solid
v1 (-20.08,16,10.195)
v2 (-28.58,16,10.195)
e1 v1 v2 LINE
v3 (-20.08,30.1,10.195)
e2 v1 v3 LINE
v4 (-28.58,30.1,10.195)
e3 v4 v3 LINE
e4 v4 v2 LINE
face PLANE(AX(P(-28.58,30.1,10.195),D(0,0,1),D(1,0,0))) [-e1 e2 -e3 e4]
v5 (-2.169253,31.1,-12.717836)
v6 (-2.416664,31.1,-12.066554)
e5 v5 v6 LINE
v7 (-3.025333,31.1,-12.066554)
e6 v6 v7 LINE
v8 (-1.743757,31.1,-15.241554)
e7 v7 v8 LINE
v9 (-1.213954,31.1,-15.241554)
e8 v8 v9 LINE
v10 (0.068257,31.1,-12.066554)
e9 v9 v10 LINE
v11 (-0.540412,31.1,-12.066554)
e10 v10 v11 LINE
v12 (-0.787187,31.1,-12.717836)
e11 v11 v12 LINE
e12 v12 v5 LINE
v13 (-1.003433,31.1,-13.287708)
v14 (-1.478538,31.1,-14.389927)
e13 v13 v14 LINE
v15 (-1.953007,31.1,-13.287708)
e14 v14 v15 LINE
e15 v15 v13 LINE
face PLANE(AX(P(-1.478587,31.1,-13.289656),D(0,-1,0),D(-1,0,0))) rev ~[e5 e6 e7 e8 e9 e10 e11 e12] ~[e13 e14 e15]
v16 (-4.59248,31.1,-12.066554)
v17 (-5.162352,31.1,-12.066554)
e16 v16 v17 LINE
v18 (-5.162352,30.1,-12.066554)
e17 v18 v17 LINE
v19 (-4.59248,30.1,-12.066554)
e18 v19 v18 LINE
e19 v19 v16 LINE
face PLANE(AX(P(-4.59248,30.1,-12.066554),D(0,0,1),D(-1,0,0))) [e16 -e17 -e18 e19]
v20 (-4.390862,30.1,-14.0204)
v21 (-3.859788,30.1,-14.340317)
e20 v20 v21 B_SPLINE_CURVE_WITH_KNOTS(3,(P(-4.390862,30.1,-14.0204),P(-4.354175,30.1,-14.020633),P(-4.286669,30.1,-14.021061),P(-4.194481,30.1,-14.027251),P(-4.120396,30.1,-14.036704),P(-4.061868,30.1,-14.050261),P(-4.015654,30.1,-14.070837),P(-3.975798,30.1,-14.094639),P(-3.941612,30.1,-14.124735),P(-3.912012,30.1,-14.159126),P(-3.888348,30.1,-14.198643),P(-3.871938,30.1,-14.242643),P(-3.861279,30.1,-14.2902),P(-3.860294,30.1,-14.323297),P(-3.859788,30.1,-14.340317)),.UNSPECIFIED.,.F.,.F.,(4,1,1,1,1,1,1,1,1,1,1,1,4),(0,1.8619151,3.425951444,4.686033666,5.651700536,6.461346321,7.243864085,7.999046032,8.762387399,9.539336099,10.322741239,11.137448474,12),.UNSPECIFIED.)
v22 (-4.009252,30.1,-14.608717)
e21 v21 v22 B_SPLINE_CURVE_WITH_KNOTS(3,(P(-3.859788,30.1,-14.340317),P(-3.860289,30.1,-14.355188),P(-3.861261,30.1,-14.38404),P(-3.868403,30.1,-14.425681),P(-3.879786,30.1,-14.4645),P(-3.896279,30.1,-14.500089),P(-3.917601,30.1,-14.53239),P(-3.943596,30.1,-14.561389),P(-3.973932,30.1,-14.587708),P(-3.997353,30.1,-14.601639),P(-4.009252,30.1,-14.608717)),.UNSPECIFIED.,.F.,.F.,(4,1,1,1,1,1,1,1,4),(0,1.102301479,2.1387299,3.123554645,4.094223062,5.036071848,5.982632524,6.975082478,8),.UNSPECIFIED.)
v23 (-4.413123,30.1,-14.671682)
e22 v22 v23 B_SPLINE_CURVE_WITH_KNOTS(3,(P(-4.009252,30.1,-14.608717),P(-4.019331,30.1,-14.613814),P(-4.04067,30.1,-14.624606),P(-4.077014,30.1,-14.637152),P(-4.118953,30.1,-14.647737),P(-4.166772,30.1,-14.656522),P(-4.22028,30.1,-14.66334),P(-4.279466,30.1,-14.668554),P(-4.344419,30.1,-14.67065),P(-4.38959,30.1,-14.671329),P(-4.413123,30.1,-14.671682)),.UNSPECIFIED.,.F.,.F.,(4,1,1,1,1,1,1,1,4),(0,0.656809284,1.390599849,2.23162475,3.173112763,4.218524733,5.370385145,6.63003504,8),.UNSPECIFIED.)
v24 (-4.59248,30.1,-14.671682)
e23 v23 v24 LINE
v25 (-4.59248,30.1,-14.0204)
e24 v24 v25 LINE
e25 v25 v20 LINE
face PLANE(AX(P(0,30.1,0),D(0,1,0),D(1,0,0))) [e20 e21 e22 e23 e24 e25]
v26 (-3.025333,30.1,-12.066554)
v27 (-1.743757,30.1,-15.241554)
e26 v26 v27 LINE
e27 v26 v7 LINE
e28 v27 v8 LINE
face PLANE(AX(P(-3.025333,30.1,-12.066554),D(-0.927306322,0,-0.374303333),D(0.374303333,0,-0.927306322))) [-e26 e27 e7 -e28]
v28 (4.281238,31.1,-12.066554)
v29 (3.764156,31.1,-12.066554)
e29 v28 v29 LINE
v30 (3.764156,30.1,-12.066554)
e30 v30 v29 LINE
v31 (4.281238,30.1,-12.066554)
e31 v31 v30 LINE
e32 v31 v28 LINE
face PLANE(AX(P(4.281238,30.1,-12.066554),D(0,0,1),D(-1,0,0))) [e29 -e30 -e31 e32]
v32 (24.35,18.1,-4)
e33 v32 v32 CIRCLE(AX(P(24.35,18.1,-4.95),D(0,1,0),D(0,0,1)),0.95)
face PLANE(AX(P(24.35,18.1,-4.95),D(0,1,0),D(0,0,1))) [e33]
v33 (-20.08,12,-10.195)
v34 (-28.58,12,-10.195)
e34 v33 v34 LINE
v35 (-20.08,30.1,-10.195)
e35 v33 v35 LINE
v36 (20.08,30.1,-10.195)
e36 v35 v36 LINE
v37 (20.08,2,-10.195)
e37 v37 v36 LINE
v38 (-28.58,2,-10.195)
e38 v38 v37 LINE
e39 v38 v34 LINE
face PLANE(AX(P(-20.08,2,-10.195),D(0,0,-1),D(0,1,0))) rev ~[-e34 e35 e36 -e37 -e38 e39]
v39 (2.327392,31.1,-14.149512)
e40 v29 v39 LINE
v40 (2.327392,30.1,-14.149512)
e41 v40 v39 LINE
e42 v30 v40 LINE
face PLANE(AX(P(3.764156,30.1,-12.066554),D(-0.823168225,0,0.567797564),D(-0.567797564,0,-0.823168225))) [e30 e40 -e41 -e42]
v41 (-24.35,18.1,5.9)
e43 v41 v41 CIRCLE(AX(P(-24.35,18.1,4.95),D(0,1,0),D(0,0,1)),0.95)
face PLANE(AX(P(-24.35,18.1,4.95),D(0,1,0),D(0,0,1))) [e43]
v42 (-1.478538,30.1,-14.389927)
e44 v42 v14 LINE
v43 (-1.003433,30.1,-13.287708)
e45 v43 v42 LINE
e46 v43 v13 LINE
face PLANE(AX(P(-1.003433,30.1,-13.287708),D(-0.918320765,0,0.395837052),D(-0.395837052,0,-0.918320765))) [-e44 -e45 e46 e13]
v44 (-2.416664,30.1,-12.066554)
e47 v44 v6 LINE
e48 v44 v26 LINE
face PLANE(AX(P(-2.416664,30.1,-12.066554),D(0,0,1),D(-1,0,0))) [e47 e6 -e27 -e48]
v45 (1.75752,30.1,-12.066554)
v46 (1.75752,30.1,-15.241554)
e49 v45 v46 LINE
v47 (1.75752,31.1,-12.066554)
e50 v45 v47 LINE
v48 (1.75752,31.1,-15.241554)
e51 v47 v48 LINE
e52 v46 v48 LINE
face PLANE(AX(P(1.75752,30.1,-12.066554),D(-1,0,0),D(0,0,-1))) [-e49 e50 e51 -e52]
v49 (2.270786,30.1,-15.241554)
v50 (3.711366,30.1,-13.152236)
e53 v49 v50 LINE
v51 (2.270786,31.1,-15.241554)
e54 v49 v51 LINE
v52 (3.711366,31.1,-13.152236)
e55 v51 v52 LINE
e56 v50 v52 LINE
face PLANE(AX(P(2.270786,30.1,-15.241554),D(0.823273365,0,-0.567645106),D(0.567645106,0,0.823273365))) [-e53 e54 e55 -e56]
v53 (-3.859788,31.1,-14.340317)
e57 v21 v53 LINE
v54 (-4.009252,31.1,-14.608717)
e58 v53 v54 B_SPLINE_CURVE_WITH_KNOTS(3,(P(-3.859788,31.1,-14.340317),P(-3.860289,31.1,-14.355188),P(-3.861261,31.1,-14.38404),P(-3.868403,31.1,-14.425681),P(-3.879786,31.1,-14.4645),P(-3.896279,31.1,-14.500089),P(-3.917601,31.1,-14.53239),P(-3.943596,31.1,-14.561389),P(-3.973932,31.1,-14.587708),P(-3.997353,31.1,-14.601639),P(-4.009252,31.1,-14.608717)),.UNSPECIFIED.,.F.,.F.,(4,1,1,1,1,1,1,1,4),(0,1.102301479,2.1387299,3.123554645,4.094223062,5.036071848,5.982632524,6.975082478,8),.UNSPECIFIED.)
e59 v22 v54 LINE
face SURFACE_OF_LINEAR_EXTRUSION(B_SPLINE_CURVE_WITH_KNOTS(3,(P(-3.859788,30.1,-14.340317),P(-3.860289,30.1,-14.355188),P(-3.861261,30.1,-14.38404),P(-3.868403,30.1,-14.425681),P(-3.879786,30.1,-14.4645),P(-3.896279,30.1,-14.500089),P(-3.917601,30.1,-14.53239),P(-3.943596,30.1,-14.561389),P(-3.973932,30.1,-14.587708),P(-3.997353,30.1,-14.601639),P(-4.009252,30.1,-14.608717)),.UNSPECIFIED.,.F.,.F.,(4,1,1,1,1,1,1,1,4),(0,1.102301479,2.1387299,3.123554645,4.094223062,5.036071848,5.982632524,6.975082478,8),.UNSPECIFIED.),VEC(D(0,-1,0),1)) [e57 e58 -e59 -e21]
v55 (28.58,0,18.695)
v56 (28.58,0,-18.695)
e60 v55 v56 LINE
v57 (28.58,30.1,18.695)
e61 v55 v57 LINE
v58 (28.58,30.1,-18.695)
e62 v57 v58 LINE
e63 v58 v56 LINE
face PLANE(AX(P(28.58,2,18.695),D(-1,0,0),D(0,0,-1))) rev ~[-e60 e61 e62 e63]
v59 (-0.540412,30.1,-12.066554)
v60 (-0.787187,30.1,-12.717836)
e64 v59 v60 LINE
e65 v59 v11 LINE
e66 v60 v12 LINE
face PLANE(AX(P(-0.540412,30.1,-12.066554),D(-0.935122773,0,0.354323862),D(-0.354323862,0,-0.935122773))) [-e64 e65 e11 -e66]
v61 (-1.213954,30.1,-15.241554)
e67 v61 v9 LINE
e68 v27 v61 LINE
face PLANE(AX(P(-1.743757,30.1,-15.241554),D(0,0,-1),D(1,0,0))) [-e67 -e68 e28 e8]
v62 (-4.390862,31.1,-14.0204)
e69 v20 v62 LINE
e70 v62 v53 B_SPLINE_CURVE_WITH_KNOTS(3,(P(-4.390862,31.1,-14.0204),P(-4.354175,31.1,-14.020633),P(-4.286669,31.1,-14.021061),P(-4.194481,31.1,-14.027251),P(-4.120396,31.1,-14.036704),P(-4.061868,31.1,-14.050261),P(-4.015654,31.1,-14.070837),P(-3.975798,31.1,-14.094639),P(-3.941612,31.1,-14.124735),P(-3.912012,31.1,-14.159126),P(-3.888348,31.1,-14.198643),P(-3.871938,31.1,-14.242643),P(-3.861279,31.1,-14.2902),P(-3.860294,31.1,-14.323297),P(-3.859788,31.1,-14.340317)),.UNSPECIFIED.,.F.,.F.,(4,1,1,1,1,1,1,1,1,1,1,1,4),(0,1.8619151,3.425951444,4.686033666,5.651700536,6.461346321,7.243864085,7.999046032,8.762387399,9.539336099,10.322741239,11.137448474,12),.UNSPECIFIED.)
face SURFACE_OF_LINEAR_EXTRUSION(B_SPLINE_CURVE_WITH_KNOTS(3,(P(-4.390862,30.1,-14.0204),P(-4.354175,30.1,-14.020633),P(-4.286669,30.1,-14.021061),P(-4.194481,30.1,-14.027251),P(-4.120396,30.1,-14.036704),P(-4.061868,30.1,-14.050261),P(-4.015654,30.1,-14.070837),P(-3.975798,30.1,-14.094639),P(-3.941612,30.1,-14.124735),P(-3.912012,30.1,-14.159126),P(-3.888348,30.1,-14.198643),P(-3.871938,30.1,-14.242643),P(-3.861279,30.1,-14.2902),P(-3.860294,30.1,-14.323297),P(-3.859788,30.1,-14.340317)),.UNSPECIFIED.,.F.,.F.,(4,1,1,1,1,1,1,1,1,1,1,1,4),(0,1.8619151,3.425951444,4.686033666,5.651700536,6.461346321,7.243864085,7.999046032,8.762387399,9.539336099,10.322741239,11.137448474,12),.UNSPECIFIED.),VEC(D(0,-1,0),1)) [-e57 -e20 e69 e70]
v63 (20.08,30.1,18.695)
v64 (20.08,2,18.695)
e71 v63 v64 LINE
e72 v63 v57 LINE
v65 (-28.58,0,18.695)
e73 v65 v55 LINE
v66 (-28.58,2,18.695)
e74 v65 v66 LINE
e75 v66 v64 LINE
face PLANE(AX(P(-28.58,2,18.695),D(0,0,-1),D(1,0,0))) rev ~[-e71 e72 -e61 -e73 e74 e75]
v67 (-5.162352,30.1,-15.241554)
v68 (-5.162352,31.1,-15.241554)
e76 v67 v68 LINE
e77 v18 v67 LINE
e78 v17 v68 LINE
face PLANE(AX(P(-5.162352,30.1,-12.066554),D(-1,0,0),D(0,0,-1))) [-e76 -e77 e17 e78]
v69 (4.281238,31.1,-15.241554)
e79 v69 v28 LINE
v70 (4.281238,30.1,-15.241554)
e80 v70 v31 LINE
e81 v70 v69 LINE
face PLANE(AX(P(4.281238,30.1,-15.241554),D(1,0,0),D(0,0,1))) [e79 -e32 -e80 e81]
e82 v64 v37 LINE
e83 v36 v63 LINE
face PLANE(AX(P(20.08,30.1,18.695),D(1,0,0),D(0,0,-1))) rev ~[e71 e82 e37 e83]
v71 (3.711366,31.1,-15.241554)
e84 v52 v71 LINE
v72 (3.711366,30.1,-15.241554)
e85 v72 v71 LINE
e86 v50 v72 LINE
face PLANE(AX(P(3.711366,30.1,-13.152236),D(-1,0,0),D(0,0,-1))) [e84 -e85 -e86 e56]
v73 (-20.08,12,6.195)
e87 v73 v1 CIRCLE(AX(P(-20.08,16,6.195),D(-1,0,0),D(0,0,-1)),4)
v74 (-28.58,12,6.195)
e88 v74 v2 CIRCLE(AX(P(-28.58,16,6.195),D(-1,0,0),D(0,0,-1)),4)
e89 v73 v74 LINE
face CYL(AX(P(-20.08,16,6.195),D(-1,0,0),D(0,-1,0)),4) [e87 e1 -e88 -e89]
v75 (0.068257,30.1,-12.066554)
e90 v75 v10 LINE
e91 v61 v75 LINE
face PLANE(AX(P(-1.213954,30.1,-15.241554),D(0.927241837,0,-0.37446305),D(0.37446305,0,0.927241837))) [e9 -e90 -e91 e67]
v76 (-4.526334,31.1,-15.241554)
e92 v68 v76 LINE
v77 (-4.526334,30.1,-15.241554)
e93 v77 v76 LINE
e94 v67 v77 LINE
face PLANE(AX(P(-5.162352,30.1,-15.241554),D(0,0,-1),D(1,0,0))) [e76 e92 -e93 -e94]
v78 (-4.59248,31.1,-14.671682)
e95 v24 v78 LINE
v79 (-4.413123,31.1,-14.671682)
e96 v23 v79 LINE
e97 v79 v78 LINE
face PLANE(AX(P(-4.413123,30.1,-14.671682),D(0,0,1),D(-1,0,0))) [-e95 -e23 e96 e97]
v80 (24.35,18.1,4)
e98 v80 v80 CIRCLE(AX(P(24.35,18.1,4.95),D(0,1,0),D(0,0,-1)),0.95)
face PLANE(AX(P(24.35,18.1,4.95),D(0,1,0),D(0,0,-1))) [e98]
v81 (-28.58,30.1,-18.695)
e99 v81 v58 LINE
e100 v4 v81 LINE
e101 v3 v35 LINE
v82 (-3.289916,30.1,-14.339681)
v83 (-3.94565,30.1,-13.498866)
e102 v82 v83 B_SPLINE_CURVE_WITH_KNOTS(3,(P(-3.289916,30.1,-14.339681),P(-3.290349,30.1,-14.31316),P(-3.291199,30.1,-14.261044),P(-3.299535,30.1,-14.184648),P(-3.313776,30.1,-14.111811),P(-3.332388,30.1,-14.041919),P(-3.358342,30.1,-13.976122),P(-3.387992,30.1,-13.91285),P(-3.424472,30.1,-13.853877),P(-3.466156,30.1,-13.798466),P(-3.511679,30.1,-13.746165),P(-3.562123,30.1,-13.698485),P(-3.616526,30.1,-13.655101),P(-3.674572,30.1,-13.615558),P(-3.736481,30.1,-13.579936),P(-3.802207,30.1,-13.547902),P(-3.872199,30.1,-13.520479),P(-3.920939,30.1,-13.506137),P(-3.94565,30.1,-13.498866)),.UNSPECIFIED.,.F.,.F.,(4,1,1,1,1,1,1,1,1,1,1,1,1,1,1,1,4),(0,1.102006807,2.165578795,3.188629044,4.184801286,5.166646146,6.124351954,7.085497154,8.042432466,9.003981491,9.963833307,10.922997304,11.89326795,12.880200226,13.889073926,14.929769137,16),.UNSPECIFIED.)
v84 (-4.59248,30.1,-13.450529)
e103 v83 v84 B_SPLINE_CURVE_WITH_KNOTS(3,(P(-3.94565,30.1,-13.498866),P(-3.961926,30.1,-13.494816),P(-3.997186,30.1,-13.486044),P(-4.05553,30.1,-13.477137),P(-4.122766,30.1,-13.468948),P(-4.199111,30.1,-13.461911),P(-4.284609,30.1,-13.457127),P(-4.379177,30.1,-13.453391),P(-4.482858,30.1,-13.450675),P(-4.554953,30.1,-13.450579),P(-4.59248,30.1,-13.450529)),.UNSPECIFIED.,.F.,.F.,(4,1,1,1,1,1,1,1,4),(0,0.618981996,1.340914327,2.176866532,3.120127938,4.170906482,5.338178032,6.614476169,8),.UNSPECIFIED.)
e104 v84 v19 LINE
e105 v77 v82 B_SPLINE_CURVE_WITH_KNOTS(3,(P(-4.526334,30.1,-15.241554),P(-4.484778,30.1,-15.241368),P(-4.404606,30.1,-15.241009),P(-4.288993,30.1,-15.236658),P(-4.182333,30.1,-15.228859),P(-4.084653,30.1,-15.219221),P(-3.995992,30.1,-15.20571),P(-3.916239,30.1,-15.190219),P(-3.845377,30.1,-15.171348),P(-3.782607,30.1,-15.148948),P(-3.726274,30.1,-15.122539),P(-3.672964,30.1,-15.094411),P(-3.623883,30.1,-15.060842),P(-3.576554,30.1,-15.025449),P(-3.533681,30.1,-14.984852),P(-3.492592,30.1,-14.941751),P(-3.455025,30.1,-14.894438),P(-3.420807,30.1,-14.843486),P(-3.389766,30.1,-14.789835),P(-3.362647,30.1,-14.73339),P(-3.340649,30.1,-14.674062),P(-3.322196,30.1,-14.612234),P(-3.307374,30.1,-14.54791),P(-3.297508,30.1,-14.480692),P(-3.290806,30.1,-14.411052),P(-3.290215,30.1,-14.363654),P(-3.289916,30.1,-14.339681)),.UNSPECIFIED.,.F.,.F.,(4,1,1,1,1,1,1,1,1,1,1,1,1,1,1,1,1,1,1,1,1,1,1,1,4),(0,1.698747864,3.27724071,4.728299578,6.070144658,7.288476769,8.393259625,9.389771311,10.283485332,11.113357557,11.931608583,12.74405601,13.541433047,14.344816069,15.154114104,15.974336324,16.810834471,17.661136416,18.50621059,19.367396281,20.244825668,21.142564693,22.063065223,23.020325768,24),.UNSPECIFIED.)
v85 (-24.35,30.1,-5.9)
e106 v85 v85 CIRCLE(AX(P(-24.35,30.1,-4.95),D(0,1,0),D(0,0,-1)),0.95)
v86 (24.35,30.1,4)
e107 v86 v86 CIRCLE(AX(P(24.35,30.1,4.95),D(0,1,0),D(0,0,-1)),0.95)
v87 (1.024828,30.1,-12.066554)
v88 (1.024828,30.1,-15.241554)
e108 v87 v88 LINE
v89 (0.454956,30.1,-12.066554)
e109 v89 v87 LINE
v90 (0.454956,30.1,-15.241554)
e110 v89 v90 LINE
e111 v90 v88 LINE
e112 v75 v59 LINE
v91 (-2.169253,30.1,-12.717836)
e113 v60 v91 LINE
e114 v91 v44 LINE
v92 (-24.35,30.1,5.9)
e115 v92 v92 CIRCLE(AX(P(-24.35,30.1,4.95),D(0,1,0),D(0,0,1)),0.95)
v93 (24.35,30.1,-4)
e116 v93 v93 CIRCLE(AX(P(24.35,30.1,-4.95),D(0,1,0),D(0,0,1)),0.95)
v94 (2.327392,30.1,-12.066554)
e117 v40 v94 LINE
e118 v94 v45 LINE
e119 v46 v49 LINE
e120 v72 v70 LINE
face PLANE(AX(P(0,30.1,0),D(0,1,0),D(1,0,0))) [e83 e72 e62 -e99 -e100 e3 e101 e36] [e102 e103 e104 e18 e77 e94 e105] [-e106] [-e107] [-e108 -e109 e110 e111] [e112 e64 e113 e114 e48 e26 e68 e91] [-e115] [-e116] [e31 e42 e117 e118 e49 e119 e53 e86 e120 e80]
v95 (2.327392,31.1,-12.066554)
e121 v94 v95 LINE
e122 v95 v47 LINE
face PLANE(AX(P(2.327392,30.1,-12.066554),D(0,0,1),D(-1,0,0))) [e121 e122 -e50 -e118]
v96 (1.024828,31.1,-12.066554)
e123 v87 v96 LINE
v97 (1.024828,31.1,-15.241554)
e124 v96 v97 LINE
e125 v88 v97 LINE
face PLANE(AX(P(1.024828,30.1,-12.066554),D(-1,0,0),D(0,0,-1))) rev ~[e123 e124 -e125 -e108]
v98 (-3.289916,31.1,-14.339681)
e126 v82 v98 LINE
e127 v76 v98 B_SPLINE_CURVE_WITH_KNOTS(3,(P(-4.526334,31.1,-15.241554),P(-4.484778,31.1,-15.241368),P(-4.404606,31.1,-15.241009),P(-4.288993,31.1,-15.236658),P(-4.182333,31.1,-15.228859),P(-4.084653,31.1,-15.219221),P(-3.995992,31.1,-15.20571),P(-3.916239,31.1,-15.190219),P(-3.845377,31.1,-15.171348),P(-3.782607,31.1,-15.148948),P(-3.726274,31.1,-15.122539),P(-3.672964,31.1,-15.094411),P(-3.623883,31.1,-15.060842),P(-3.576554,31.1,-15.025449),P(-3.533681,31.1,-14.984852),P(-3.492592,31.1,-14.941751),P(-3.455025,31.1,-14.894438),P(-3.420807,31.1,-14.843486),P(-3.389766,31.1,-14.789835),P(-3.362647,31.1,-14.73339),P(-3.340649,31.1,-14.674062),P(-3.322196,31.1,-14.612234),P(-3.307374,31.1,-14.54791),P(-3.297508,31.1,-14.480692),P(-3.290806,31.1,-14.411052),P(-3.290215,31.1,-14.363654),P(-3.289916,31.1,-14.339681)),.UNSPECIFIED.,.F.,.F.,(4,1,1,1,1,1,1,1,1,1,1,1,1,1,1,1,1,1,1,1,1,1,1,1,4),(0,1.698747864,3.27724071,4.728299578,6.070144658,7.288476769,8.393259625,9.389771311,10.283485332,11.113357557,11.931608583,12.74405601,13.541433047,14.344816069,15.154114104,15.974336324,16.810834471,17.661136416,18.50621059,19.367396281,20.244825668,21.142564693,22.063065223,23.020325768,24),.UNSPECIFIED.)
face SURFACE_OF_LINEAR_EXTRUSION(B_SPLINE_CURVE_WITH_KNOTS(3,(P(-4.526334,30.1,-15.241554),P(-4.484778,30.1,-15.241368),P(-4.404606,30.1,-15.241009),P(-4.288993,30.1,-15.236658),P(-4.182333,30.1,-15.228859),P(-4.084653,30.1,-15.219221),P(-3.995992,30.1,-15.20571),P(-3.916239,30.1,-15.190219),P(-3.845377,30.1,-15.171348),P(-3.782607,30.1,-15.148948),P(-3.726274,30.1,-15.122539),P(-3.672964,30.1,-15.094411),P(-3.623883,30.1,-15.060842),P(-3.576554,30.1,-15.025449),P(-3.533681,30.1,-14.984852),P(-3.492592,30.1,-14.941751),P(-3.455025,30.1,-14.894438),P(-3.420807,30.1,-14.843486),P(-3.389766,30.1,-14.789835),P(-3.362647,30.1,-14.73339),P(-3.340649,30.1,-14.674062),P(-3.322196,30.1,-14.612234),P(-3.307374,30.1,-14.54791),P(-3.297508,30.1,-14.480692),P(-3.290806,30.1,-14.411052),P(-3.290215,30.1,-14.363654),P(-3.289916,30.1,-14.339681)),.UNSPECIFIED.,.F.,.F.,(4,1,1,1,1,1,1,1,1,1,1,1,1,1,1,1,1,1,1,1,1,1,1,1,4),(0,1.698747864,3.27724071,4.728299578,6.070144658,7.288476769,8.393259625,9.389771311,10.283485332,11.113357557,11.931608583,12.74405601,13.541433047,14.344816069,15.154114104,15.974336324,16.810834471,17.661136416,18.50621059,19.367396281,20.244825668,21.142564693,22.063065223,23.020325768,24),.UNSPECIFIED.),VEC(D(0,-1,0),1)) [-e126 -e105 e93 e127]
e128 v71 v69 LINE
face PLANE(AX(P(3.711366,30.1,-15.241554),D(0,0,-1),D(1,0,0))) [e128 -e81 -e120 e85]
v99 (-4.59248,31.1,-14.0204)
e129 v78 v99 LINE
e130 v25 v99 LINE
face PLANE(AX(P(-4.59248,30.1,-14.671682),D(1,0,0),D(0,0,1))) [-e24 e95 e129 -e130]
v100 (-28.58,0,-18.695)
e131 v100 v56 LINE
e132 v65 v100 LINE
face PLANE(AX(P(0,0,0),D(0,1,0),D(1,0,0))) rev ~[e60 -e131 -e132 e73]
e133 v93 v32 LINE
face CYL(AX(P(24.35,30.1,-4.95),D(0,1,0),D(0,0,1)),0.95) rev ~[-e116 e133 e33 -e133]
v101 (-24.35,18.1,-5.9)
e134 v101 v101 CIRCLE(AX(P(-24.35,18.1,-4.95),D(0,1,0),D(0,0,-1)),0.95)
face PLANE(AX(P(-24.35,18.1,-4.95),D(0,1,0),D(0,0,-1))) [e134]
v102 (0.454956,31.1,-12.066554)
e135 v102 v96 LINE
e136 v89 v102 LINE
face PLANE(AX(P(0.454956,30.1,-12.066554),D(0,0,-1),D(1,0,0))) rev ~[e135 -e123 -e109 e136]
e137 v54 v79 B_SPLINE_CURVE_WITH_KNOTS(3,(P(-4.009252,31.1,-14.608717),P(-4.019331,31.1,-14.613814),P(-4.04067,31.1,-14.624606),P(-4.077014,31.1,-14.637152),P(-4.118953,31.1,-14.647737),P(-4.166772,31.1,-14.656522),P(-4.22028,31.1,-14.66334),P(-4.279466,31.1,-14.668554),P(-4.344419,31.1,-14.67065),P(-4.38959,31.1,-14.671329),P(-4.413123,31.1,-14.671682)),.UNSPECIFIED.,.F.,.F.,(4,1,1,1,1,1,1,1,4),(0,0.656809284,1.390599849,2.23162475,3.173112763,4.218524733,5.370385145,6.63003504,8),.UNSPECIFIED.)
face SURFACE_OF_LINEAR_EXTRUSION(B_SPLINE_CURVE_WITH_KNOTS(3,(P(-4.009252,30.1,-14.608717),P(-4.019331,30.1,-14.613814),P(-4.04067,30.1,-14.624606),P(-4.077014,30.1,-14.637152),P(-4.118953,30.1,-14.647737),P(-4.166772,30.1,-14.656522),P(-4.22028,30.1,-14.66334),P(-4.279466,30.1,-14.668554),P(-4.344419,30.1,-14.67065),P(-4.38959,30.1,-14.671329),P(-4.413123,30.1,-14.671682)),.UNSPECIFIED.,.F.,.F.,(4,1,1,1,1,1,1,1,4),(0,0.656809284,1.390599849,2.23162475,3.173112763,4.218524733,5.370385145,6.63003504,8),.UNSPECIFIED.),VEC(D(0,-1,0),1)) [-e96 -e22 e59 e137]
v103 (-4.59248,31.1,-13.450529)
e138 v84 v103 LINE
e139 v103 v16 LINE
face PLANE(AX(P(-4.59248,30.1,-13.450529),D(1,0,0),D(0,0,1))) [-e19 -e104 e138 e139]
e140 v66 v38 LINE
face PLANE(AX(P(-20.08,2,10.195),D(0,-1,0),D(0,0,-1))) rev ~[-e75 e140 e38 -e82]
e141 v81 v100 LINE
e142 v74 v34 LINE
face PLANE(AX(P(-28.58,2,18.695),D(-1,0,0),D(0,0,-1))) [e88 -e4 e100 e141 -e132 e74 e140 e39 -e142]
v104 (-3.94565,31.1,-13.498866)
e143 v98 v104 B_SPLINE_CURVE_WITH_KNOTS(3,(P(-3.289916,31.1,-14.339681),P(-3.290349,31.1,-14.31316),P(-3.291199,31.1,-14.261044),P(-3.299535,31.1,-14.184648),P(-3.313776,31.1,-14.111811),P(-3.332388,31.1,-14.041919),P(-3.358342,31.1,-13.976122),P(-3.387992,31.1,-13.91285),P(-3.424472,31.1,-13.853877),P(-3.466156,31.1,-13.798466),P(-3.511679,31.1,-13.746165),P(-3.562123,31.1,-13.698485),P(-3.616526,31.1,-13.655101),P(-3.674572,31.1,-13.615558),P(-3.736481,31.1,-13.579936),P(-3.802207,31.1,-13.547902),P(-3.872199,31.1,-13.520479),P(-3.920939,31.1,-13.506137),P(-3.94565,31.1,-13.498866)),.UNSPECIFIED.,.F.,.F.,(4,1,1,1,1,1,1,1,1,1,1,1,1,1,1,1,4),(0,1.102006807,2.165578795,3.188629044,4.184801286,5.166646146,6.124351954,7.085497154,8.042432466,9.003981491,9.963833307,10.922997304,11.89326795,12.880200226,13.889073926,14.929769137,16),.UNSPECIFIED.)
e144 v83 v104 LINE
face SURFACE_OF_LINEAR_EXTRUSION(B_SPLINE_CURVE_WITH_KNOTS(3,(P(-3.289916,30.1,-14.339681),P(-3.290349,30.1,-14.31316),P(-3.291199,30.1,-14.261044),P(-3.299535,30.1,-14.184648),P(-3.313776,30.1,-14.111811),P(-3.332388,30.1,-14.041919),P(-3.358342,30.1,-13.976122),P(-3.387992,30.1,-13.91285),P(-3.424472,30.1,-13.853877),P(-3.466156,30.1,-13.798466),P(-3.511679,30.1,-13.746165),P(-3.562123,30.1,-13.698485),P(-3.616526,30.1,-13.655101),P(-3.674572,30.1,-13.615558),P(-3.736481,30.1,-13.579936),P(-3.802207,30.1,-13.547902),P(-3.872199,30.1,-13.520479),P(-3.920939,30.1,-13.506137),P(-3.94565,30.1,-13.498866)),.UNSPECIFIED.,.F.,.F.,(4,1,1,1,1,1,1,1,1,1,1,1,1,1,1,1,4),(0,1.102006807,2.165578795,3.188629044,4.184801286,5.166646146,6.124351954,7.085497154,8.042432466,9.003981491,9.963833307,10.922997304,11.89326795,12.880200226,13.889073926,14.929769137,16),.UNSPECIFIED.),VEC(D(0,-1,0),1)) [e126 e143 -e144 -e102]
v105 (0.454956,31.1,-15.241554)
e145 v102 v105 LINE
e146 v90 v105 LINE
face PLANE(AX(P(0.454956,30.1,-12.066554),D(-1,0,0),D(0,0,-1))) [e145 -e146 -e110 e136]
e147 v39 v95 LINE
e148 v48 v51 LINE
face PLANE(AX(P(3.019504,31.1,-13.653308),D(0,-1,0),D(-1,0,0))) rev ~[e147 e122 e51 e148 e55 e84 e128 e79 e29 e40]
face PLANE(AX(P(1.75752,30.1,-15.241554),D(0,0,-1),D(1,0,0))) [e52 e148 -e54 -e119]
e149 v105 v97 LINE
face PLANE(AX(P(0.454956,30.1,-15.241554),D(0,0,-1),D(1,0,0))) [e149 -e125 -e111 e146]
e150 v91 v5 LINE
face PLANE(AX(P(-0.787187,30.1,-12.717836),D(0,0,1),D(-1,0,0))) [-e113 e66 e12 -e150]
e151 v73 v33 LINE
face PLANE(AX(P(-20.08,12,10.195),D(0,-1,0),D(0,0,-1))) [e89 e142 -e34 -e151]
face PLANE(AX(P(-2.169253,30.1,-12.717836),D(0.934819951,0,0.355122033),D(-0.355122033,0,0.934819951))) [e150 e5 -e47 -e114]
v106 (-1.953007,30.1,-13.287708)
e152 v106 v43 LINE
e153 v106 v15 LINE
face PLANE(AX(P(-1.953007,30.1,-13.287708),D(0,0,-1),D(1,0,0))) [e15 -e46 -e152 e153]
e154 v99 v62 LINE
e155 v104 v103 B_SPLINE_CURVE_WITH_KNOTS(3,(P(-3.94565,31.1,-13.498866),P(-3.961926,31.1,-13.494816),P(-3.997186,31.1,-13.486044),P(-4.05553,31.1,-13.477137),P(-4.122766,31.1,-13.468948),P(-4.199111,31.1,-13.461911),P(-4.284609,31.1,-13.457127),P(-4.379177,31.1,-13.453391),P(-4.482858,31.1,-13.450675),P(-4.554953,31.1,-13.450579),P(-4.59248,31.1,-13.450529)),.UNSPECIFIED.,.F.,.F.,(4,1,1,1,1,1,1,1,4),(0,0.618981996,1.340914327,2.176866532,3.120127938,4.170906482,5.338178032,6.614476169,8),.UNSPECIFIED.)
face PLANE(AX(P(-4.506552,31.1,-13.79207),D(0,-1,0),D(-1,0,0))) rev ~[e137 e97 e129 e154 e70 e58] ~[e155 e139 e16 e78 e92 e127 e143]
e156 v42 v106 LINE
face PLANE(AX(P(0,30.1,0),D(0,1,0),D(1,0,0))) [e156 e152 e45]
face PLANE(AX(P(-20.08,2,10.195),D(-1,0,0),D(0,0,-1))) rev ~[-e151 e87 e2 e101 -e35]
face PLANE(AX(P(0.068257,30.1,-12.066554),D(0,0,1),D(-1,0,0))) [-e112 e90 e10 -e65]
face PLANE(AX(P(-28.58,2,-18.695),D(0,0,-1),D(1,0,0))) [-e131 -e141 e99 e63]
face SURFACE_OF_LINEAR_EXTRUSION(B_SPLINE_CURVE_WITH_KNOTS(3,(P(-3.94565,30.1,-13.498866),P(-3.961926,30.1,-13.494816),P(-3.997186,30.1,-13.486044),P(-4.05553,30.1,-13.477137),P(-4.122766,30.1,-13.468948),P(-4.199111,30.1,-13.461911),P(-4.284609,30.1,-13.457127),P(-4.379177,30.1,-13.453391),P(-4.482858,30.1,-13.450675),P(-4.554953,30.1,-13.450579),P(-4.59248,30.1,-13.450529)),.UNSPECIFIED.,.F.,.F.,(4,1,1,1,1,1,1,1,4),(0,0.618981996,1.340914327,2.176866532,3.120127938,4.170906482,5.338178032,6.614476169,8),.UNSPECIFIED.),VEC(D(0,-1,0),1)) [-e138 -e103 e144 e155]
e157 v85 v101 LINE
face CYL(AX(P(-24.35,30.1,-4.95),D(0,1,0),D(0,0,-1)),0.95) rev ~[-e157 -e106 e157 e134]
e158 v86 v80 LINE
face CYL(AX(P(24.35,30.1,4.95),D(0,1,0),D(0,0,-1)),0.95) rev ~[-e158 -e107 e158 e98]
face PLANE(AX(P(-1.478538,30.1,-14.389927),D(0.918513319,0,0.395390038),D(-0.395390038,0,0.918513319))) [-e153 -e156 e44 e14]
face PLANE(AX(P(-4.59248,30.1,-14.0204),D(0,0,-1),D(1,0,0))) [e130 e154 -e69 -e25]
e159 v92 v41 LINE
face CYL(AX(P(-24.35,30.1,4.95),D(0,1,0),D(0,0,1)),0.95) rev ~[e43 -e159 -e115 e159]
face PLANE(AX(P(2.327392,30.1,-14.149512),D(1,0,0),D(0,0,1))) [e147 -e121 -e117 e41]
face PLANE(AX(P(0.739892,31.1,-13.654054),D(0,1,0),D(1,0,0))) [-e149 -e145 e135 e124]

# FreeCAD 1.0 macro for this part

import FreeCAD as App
import Part
import Sketcher

V = App.Vector
Q = App.Units.Quantity


def edges_at(feature, points):
    """Names of the edges that pass closest to the given points."""
    edges = feature.Shape.Edges
    near = lambda p: min(range(len(edges)), key=lambda i: edges[i].distToShape(Part.Vertex(*p))[0])
    return sorted({f"Edge{near(p) + 1}" for p in points})

doc = App.newDocument("Part")
params = doc.addObject("Spreadsheet::Sheet", "Params")
for row, (alias, value) in enumerate([
    ("sketch1_width", "57.16 mm"),
    ("sketch1_height", "37.39 mm"),
    ("pad1_length", "2 mm"),
    ("sketch2_width", "57.16 mm"),
    ("sketch2_width2", "40.16 mm"),
    ("sketch2_height", "37.39 mm"),
    ("sketch2_height2", "20.39 mm"),
    ("pad2_length", "28.1 mm"),
    ("sketch3_height", "8.5 mm"),
    ("sketch3_width", "48.66 mm"),
    ("pocket1_length", "28.1 mm"),
    ("sketch4_width", "10 mm"),
    ("sketch4_height", "20.39 mm"),
    ("fillet_radius", "4 mm"),
    ("sketch5_diameter", "1.9 mm"),
    ("pocket3_length", "12 mm"),
    ("pad3_length", "1 mm"),
], start=1):
    params.set(f"A{row}", alias)
    params.set(f"B{row}", "=" + value)
    params.setAlias(f"B{row}", alias)

body = doc.addObject("PartDesign::Body", "Body")

sketch1 = body.newObject("Sketcher::SketchObject", "Sketch")
sketch1.AttachmentSupport = (doc.getObject("XZ_Plane"), [""])
sketch1.MapMode = "FlatFace"
sketch1.addGeometry(Part.LineSegment(V(-29, -19, 0), V(-29, 19, 0)), False)
sketch1.addGeometry(Part.LineSegment(V(-29, 19, 0), V(29, 19, 0)), False)
sketch1.addGeometry(Part.LineSegment(V(29, 19, 0), V(29, -19, 0)), False)
sketch1.addGeometry(Part.LineSegment(V(29, -19, 0), V(-29, -19, 0)), False)
sketch1.addConstraint(Sketcher.Constraint("Coincident", 0, 2, 1, 1))
sketch1.addConstraint(Sketcher.Constraint("Coincident", 1, 2, 2, 1))
sketch1.addConstraint(Sketcher.Constraint("Coincident", 2, 2, 3, 1))
sketch1.addConstraint(Sketcher.Constraint("Coincident", 3, 2, 0, 1))
sketch1.addConstraint(Sketcher.Constraint("Vertical", 0))
sketch1.addConstraint(Sketcher.Constraint("Horizontal", 1))
sketch1.addConstraint(Sketcher.Constraint("Vertical", 2))
sketch1.addConstraint(Sketcher.Constraint("Horizontal", 3))
sketch1.addConstraint(Sketcher.Constraint("Symmetric", 0, 2, 2, 2, -1, 1))
sketch1.addConstraint(Sketcher.Constraint("DistanceX", 1, 1, 1, 2, Q("57.16 mm")))
sketch1.addConstraint(Sketcher.Constraint("DistanceY", 0, 1, 0, 2, Q("37.39 mm")))
sketch1.setExpression("Constraints[9]", "Params.sketch1_width")
sketch1.setExpression("Constraints[10]", "Params.sketch1_height")
pad1 = body.newObject("PartDesign::Pad", "Pad")
pad1.Profile = sketch1
pad1.setExpression("Length", "Params.pad1_length")
pad1.Reversed = True

sketch2 = body.newObject("Sketcher::SketchObject", "Sketch001")
sketch2.AttachmentSupport = (doc.getObject("XZ_Plane"), [""])
sketch2.MapMode = "FlatFace"
sketch2.AttachmentOffset = App.Placement(V(0, 0, -2), App.Rotation())
sketch2.addGeometry(Part.LineSegment(V(-29, -19, 0), V(-29, 19, 0)), False)
sketch2.addGeometry(Part.LineSegment(V(-29, 19, 0), V(29, 19, 0)), False)
sketch2.addGeometry(Part.LineSegment(V(29, 19, 0), V(29, -19, 0)), False)
sketch2.addGeometry(Part.LineSegment(V(29, -19, 0), V(-29, -19, 0)), False)
sketch2.addGeometry(Part.LineSegment(V(20, 10, 0), V(-20, 10, 0)), False)
sketch2.addGeometry(Part.LineSegment(V(-20, 10, 0), V(-20, -10, 0)), False)
sketch2.addGeometry(Part.LineSegment(V(-20, -10, 0), V(20, -10, 0)), False)
sketch2.addGeometry(Part.LineSegment(V(20, -10, 0), V(20, 10, 0)), False)
sketch2.addConstraint(Sketcher.Constraint("Coincident", 0, 2, 1, 1))
sketch2.addConstraint(Sketcher.Constraint("Coincident", 1, 2, 2, 1))
sketch2.addConstraint(Sketcher.Constraint("Coincident", 2, 2, 3, 1))
sketch2.addConstraint(Sketcher.Constraint("Coincident", 3, 2, 0, 1))
sketch2.addConstraint(Sketcher.Constraint("Coincident", 4, 2, 5, 1))
sketch2.addConstraint(Sketcher.Constraint("Coincident", 5, 2, 6, 1))
sketch2.addConstraint(Sketcher.Constraint("Coincident", 6, 2, 7, 1))
sketch2.addConstraint(Sketcher.Constraint("Coincident", 7, 2, 4, 1))
sketch2.addConstraint(Sketcher.Constraint("Vertical", 0))
sketch2.addConstraint(Sketcher.Constraint("Horizontal", 1))
sketch2.addConstraint(Sketcher.Constraint("Vertical", 2))
sketch2.addConstraint(Sketcher.Constraint("Horizontal", 3))
sketch2.addConstraint(Sketcher.Constraint("Horizontal", 4))
sketch2.addConstraint(Sketcher.Constraint("Vertical", 5))
sketch2.addConstraint(Sketcher.Constraint("Horizontal", 6))
sketch2.addConstraint(Sketcher.Constraint("Vertical", 7))
sketch2.addConstraint(Sketcher.Constraint("Symmetric", 0, 2, 2, 2, -1, 1))
sketch2.addConstraint(Sketcher.Constraint("Symmetric", 4, 2, 6, 2, -1, 1))
sketch2.addConstraint(Sketcher.Constraint("DistanceX", 1, 1, 1, 2, Q("57.16 mm")))
sketch2.addConstraint(Sketcher.Constraint("DistanceX", 4, 2, 4, 1, Q("40.16 mm")))
sketch2.addConstraint(Sketcher.Constraint("DistanceY", 0, 1, 0, 2, Q("37.39 mm")))
sketch2.addConstraint(Sketcher.Constraint("DistanceY", 5, 2, 5, 1, Q("20.39 mm")))
sketch2.setExpression("Constraints[18]", "Params.sketch2_width")
sketch2.setExpression("Constraints[19]", "Params.sketch2_width2")
sketch2.setExpression("Constraints[20]", "Params.sketch2_height")
sketch2.setExpression("Constraints[21]", "Params.sketch2_height2")
pad2 = body.newObject("PartDesign::Pad", "Pad001")
pad2.Profile = sketch2
pad2.setExpression("Length", "Params.pad2_length")
pad2.Reversed = True

sketch3 = body.newObject("Sketcher::SketchObject", "Sketch002")
sketch3.AttachmentSupport = (doc.getObject("XZ_Plane"), [""])
sketch3.MapMode = "FlatFace"
sketch3.AttachmentOffset = App.Placement(V(0, 0, -30.1), App.Rotation())
sketch3.addGeometry(Part.LineSegment(V(-29, 10, 0), V(-29, 19, 0)), False)
sketch3.addGeometry(Part.LineSegment(V(-29, 19, 0), V(20, 19, 0)), False)
sketch3.addGeometry(Part.LineSegment(V(20, 19, 0), V(20, 10, 0)), False)
sketch3.addGeometry(Part.LineSegment(V(20, 10, 0), V(-29, 10, 0)), False)
sketch3.addConstraint(Sketcher.Constraint("Coincident", 0, 2, 1, 1))
sketch3.addConstraint(Sketcher.Constraint("Coincident", 1, 2, 2, 1))
sketch3.addConstraint(Sketcher.Constraint("Coincident", 2, 2, 3, 1))
sketch3.addConstraint(Sketcher.Constraint("Coincident", 3, 2, 0, 1))
sketch3.addConstraint(Sketcher.Constraint("Vertical", 0))
sketch3.addConstraint(Sketcher.Constraint("Horizontal", 1))
sketch3.addConstraint(Sketcher.Constraint("Vertical", 2))
sketch3.addConstraint(Sketcher.Constraint("Horizontal", 3))
sketch3.addConstraint(Sketcher.Constraint("DistanceY", 0, 1, 0, 2, Q("8.5 mm")))
sketch3.addConstraint(Sketcher.Constraint("DistanceX", 1, 1, 1, 2, Q("48.66 mm")))
sketch3.addConstraint(Sketcher.Constraint("DistanceX", 0, 2, -1, 1, Q("28.58 mm")))
sketch3.addConstraint(Sketcher.Constraint("DistanceY", -1, 1, 0, 2, Q("18.695 mm")))
sketch3.setExpression("Constraints[8]", "Params.sketch3_height")
sketch3.setExpression("Constraints[9]", "Params.sketch3_width")
pocket1 = body.newObject("PartDesign::Pocket", "Pocket")
pocket1.Profile = sketch3
pocket1.setExpression("Length", "Params.pocket1_length")
pocket1.Reversed = True

sketch4 = body.newObject("Sketcher::SketchObject", "Sketch003")
sketch4.AttachmentSupport = (doc.getObject("YZ_Plane"), [""])
sketch4.MapMode = "FlatFace"
sketch4.AttachmentOffset = App.Placement(V(0, 0, -20.08), App.Rotation())
sketch4.addGeometry(Part.LineSegment(V(12, 10, 0), V(2, 10, 0)), False)
sketch4.addGeometry(Part.LineSegment(V(2, 10, 0), V(2, -10, 0)), False)
sketch4.addGeometry(Part.LineSegment(V(2, -10, 0), V(12, -10, 0)), False)
sketch4.addGeometry(Part.LineSegment(V(12, -10, 0), V(12, 10, 0)), False)
sketch4.addConstraint(Sketcher.Constraint("Coincident", 0, 2, 1, 1))
sketch4.addConstraint(Sketcher.Constraint("Coincident", 1, 2, 2, 1))
sketch4.addConstraint(Sketcher.Constraint("Coincident", 2, 2, 3, 1))
sketch4.addConstraint(Sketcher.Constraint("Coincident", 3, 2, 0, 1))
sketch4.addConstraint(Sketcher.Constraint("Horizontal", 0))
sketch4.addConstraint(Sketcher.Constraint("Vertical", 1))
sketch4.addConstraint(Sketcher.Constraint("Horizontal", 2))
sketch4.addConstraint(Sketcher.Constraint("Vertical", 3))
sketch4.addConstraint(Sketcher.Constraint("DistanceX", 0, 2, 0, 1, Q("10 mm")))
sketch4.addConstraint(Sketcher.Constraint("DistanceX", -1, 1, 0, 2, Q("2 mm")))
sketch4.addConstraint(Sketcher.Constraint("DistanceY", 1, 2, 1, 1, Q("20.39 mm")))
sketch4.addConstraint(Sketcher.Constraint("DistanceY", -1, 1, 0, 2, Q("10.195 mm")))
sketch4.setExpression("Constraints[8]", "Params.sketch4_width")
sketch4.setExpression("Constraints[10]", "Params.sketch4_height")
pocket2 = body.newObject("PartDesign::Pocket", "Pocket001")
pocket2.Profile = sketch4
pocket2.Type = "UpToFirst"
doc.recompute()

fillet = body.newObject("PartDesign::Fillet", "Fillet")
fillet.Base = (pocket2, edges_at(pocket2, [(-24.33, 12, 10.195)]))
fillet.setExpression("Radius", "Params.fillet_radius")

sketch5 = body.newObject("Sketcher::SketchObject", "Sketch004")
sketch5.AttachmentSupport = (doc.getObject("XZ_Plane"), [""])
sketch5.MapMode = "FlatFace"
sketch5.AttachmentOffset = App.Placement(V(0, 0, -30.1), App.Rotation())
sketch5.addGeometry(Part.Circle(V(-24.4, 5, 0), V(0, 0, 1), 0.9), False)
sketch5.addGeometry(Part.Circle(V(-24.4, -5, 0), V(0, 0, 1), 0.9), False)
sketch5.addGeometry(Part.Circle(V(24.4, -5, 0), V(0, 0, 1), 0.9), False)
sketch5.addGeometry(Part.Circle(V(24.4, 5, 0), V(0, 0, 1), 0.9), False)
sketch5.addConstraint(Sketcher.Constraint("Equal", 0, 1))
sketch5.addConstraint(Sketcher.Constraint("Equal", 1, 2))
sketch5.addConstraint(Sketcher.Constraint("Equal", 2, 3))
sketch5.addConstraint(Sketcher.Constraint("Symmetric", 0, 3, 2, 3, -1, 1))
sketch5.addConstraint(Sketcher.Constraint("Symmetric", 1, 3, 3, 3, -1, 1))
sketch5.addConstraint(Sketcher.Constraint("Symmetric", 1, 3, 2, 3, -2))
sketch5.addConstraint(Sketcher.Constraint("Diameter", 0, Q("1.9 mm")))
sketch5.addConstraint(Sketcher.Constraint("DistanceY", 1, 3, 0, 3, Q("9.9 mm")))
sketch5.addConstraint(Sketcher.Constraint("DistanceX", 1, 3, 2, 3, Q("48.7 mm")))
sketch5.setExpression("Constraints[6]", "Params.sketch5_diameter")
pocket3 = body.newObject("PartDesign::Pocket", "Pocket002")
pocket3.Profile = sketch5
pocket3.setExpression("Length", "Params.pocket3_length")
pocket3.Reversed = True

sketch6 = body.newObject("Sketcher::SketchObject", "Sketch005")
sketch6.AttachmentSupport = (doc.getObject("XZ_Plane"), [""])
sketch6.MapMode = "FlatFace"
sketch6.AttachmentOffset = App.Placement(V(0, 0, -30.1), App.Rotation())
sketch6.addGeometry(Part.LineSegment(V(-4.526334, -15.241554, 0), V(-5.162352, -15.241554, 0)), False)
sketch6.addGeometry(Part.LineSegment(V(-5.162352, -15.241554, 0), V(-5.162352, -12.066554, 0)), False)
sketch6.addGeometry(Part.LineSegment(V(-5.162352, -12.066554, 0), V(-4.59248, -12.066554, 0)), False)
sketch6.addGeometry(Part.LineSegment(V(-4.59248, -12.066554, 0), V(-4.59248, -13.450529, 0)), False)
sketch6.addGeometry(Part.BSplineCurve([V(-3.94565, -13.498866, 0), V(-3.961926, -13.494816, 0), V(-3.997186, -13.486044, 0), V(-4.05553, -13.477137, 0), V(-4.122766, -13.468948, 0), V(-4.199111, -13.461911, 0), V(-4.284609, -13.457127, 0), V(-4.379177, -13.453391, 0), V(-4.482858, -13.450675, 0), V(-4.554953, -13.450579, 0), V(-4.59248, -13.450529, 0)], [4, 1, 1, 1, 1, 1, 1, 1, 4], [0, 0.618981996, 1.340914327, 2.176866532, 3.120127938, 4.170906482, 5.338178032, 6.614476169, 8], False, 3, [1, 1, 1, 1, 1, 1, 1, 1, 1, 1, 1], False), False)
sketch6.addGeometry(Part.BSplineCurve([V(-3.289916, -14.339681, 0), V(-3.290349, -14.31316, 0), V(-3.291199, -14.261044, 0), V(-3.299535, -14.184648, 0), V(-3.313776, -14.111811, 0), V(-3.332388, -14.041919, 0), V(-3.358342, -13.976122, 0), V(-3.387992, -13.91285, 0), V(-3.424472, -13.853877, 0), V(-3.466156, -13.798466, 0), V(-3.511679, -13.746165, 0), V(-3.562123, -13.698485, 0), V(-3.616526, -13.655101, 0), V(-3.674572, -13.615558, 0), V(-3.736481, -13.579936, 0), V(-3.802207, -13.547902, 0), V(-3.872199, -13.520479, 0), V(-3.920939, -13.506137, 0), V(-3.94565, -13.498866, 0)], [4, 1, 1, 1, 1, 1, 1, 1, 1, 1, 1, 1, 1, 1, 1, 1, 4], [0, 1.102006807, 2.165578795, 3.188629044, 4.184801286, 5.166646146, 6.124351954, 7.085497154, 8.042432466, 9.003981491, 9.963833307, 10.922997304, 11.89326795, 12.880200226, 13.889073926, 14.929769137, 16], False, 3, [1, 1, 1, 1, 1, 1, 1, 1, 1, 1, 1, 1, 1, 1, 1, 1, 1, 1, 1], False), False)
sketch6.addGeometry(Part.BSplineCurve([V(-4.526334, -15.241554, 0), V(-4.484778, -15.241368, 0), V(-4.404606, -15.241009, 0), V(-4.288993, -15.236658, 0), V(-4.182333, -15.228859, 0), V(-4.084653, -15.219221, 0), V(-3.995992, -15.20571, 0), V(-3.916239, -15.190219, 0), V(-3.845377, -15.171348, 0), V(-3.782607, -15.148948, 0), V(-3.726274, -15.122539, 0), V(-3.672964, -15.094411, 0), V(-3.623883, -15.060842, 0), V(-3.576554, -15.025449, 0), V(-3.533681, -14.984852, 0), V(-3.492592, -14.941751, 0), V(-3.455025, -14.894438, 0), V(-3.420807, -14.843486, 0), V(-3.389766, -14.789835, 0), V(-3.362647, -14.73339, 0), V(-3.340649, -14.674062, 0), V(-3.322196, -14.612234, 0), V(-3.307374, -14.54791, 0), V(-3.297508, -14.480692, 0), V(-3.290806, -14.411052, 0), V(-3.290215, -14.363654, 0), V(-3.289916, -14.339681, 0)], [4, 1, 1, 1, 1, 1, 1, 1, 1, 1, 1, 1, 1, 1, 1, 1, 1, 1, 1, 1, 1, 1, 1, 1, 4], [0, 1.698747864, 3.27724071, 4.728299578, 6.070144658, 7.288476769, 8.393259625, 9.389771311, 10.283485332, 11.113357557, 11.931608583, 12.74405601, 13.541433047, 14.344816069, 15.154114104, 15.974336324, 16.810834471, 17.661136416, 18.50621059, 19.367396281, 20.244825668, 21.142564693, 22.063065223, 23.020325768, 24], False, 3, [1, 1, 1, 1, 1, 1, 1, 1, 1, 1, 1, 1, 1, 1, 1, 1, 1, 1, 1, 1, 1, 1, 1, 1, 1, 1, 1], False), False)
sketch6.addGeometry(Part.LineSegment(V(-4.59248, -14.0204, 0), V(-4.59248, -14.671682, 0)), False)
sketch6.addGeometry(Part.LineSegment(V(-4.59248, -14.671682, 0), V(-4.413123, -14.671682, 0)), False)
sketch6.addGeometry(Part.BSplineCurve([V(-4.009252, -14.608717, 0), V(-4.019331, -14.613814, 0), V(-4.04067, -14.624606, 0), V(-4.077014, -14.637152, 0), V(-4.118953, -14.647737, 0), V(-4.166772, -14.656522, 0), V(-4.22028, -14.66334, 0), V(-4.279466, -14.668554, 0), V(-4.344419, -14.67065, 0), V(-4.38959, -14.671329, 0), V(-4.413123, -14.671682, 0)], [4, 1, 1, 1, 1, 1, 1, 1, 4], [0, 0.656809284, 1.390599849, 2.23162475, 3.173112763, 4.218524733, 5.370385145, 6.63003504, 8], False, 3, [1, 1, 1, 1, 1, 1, 1, 1, 1, 1, 1], False), False)
sketch6.addGeometry(Part.BSplineCurve([V(-3.859788, -14.340317, 0), V(-3.860289, -14.355188, 0), V(-3.861261, -14.38404, 0), V(-3.868403, -14.425681, 0), V(-3.879786, -14.4645, 0), V(-3.896279, -14.500089, 0), V(-3.917601, -14.53239, 0), V(-3.943596, -14.561389, 0), V(-3.973932, -14.587708, 0), V(-3.997353, -14.601639, 0), V(-4.009252, -14.608717, 0)], [4, 1, 1, 1, 1, 1, 1, 1, 4], [0, 1.102301479, 2.1387299, 3.123554645, 4.094223062, 5.036071848, 5.982632524, 6.975082478, 8], False, 3, [1, 1, 1, 1, 1, 1, 1, 1, 1, 1, 1], False), False)
sketch6.addGeometry(Part.BSplineCurve([V(-4.390862, -14.0204, 0), V(-4.354175, -14.020633, 0), V(-4.286669, -14.021061, 0), V(-4.194481, -14.027251, 0), V(-4.120396, -14.036704, 0), V(-4.061868, -14.050261, 0), V(-4.015654, -14.070837, 0), V(-3.975798, -14.094639, 0), V(-3.941612, -14.124735, 0), V(-3.912012, -14.159126, 0), V(-3.888348, -14.198643, 0), V(-3.871938, -14.242643, 0), V(-3.861279, -14.2902, 0), V(-3.860294, -14.323297, 0), V(-3.859788, -14.340317, 0)], [4, 1, 1, 1, 1, 1, 1, 1, 1, 1, 1, 1, 4], [0, 1.8619151, 3.425951444, 4.686033666, 5.651700536, 6.461346321, 7.243864085, 7.999046032, 8.762387399, 9.539336099, 10.322741239, 11.137448474, 12], False, 3, [1, 1, 1, 1, 1, 1, 1, 1, 1, 1, 1, 1, 1, 1, 1], False), False)
sketch6.addGeometry(Part.LineSegment(V(-4.390862, -14.0204, 0), V(-4.59248, -14.0204, 0)), False)
sketch6.addGeometry(Part.LineSegment(V(-1.213954, -15.241554, 0), V(-1.743757, -15.241554, 0)), False)
sketch6.addGeometry(Part.LineSegment(V(-1.743757, -15.241554, 0), V(-3.025333, -12.066554, 0)), False)
sketch6.addGeometry(Part.LineSegment(V(-3.025333, -12.066554, 0), V(-2.416664, -12.066554, 0)), False)
sketch6.addGeometry(Part.LineSegment(V(-2.416664, -12.066554, 0), V(-2.169253, -12.717836, 0)), False)
sketch6.addGeometry(Part.LineSegment(V(-2.169253, -12.717836, 0), V(-0.787187, -12.717836, 0)), False)
sketch6.addGeometry(Part.LineSegment(V(-0.787187, -12.717836, 0), V(-0.540412, -12.066554, 0)), False)
sketch6.addGeometry(Part.LineSegment(V(-0.540412, -12.066554, 0), V(0.068257, -12.066554, 0)), False)
sketch6.addGeometry(Part.LineSegment(V(0.068257, -12.066554, 0), V(-1.213954, -15.241554, 0)), False)
sketch6.addGeometry(Part.LineSegment(V(-1.478538, -14.389927, 0), V(-1.003433, -13.287708, 0)), False)
sketch6.addGeometry(Part.LineSegment(V(-1.003433, -13.287708, 0), V(-1.953007, -13.287708, 0)), False)
sketch6.addGeometry(Part.LineSegment(V(-1.953007, -13.287708, 0), V(-1.478538, -14.389927, 0)), False)
sketch6.addGeometry(Part.LineSegment(V(0.454956, -15.241554, 0), V(0.454956, -12.066554, 0)), False)
sketch6.addGeometry(Part.LineSegment(V(0.454956, -12.066554, 0), V(1.024828, -12.066554, 0)), False)
sketch6.addGeometry(Part.LineSegment(V(1.024828, -12.066554, 0), V(1.024828, -15.241554, 0)), False)
sketch6.addGeometry(Part.LineSegment(V(1.024828, -15.241554, 0), V(0.454956, -15.241554, 0)), False)
sketch6.addGeometry(Part.LineSegment(V(2.270786, -15.241554, 0), V(1.75752, -15.241554, 0)), False)
sketch6.addGeometry(Part.LineSegment(V(1.75752, -15.241554, 0), V(1.75752, -12.066554, 0)), False)
sketch6.addGeometry(Part.LineSegment(V(1.75752, -12.066554, 0), V(2.327392, -12.066554, 0)), False)
sketch6.addGeometry(Part.LineSegment(V(2.327392, -12.066554, 0), V(2.327392, -14.149512, 0)), False)
sketch6.addGeometry(Part.LineSegment(V(2.327392, -14.149512, 0), V(3.764156, -12.066554, 0)), False)
sketch6.addGeometry(Part.LineSegment(V(3.764156, -12.066554, 0), V(4.281238, -12.066554, 0)), False)
sketch6.addGeometry(Part.LineSegment(V(4.281238, -12.066554, 0), V(4.281238, -15.241554, 0)), False)
sketch6.addGeometry(Part.LineSegment(V(4.281238, -15.241554, 0), V(3.711366, -15.241554, 0)), False)
sketch6.addGeometry(Part.LineSegment(V(3.711366, -15.241554, 0), V(3.711366, -13.152236, 0)), False)
sketch6.addGeometry(Part.LineSegment(V(3.711366, -13.152236, 0), V(2.270786, -15.241554, 0)), False)
sketch6.addConstraint(Sketcher.Constraint("Block", 4))
sketch6.addConstraint(Sketcher.Constraint("Block", 5))
sketch6.addConstraint(Sketcher.Constraint("Block", 6))
sketch6.addConstraint(Sketcher.Constraint("Block", 9))
sketch6.addConstraint(Sketcher.Constraint("Block", 10))
sketch6.addConstraint(Sketcher.Constraint("Block", 11))
sketch6.addConstraint(Sketcher.Constraint("Coincident", 0, 2, 1, 1))
sketch6.addConstraint(Sketcher.Constraint("Coincident", 1, 2, 2, 1))
sketch6.addConstraint(Sketcher.Constraint("Coincident", 2, 2, 3, 1))
sketch6.addConstraint(Sketcher.Constraint("Coincident", 3, 2, 4, 2))
sketch6.addConstraint(Sketcher.Constraint("Coincident", 6, 1, 0, 1))
sketch6.addConstraint(Sketcher.Constraint("Coincident", 7, 2, 8, 1))
sketch6.addConstraint(Sketcher.Constraint("Coincident", 8, 2, 9, 2))
sketch6.addConstraint(Sketcher.Constraint("Coincident", 11, 1, 12, 1))
sketch6.addConstraint(Sketcher.Constraint("Coincident", 12, 2, 7, 1))
sketch6.addConstraint(Sketcher.Constraint("Coincident", 13, 2, 14, 1))
sketch6.addConstraint(Sketcher.Constraint("Coincident", 14, 2, 15, 1))
sketch6.addConstraint(Sketcher.Constraint("Coincident", 15, 2, 16, 1))
sketch6.addConstraint(Sketcher.Constraint("Coincident", 16, 2, 17, 1))
sketch6.addConstraint(Sketcher.Constraint("Coincident", 17, 2, 18, 1))
sketch6.addConstraint(Sketcher.Constraint("Coincident", 18, 2, 19, 1))
sketch6.addConstraint(Sketcher.Constraint("Coincident", 19, 2, 20, 1))
sketch6.addConstraint(Sketcher.Constraint("Coincident", 20, 2, 13, 1))
sketch6.addConstraint(Sketcher.Constraint("Coincident", 21, 2, 22, 1))
sketch6.addConstraint(Sketcher.Constraint("Coincident", 22, 2, 23, 1))
sketch6.addConstraint(Sketcher.Constraint("Coincident", 23, 2, 21, 1))
sketch6.addConstraint(Sketcher.Constraint("Coincident", 24, 2, 25, 1))
sketch6.addConstraint(Sketcher.Constraint("Coincident", 25, 2, 26, 1))
sketch6.addConstraint(Sketcher.Constraint("Coincident", 26, 2, 27, 1))
sketch6.addConstraint(Sketcher.Constraint("Coincident", 27, 2, 24, 1))
sketch6.addConstraint(Sketcher.Constraint("Coincident", 28, 2, 29, 1))
sketch6.addConstraint(Sketcher.Constraint("Coincident", 29, 2, 30, 1))
sketch6.addConstraint(Sketcher.Constraint("Coincident", 30, 2, 31, 1))
sketch6.addConstraint(Sketcher.Constraint("Coincident", 31, 2, 32, 1))
sketch6.addConstraint(Sketcher.Constraint("Coincident", 32, 2, 33, 1))
sketch6.addConstraint(Sketcher.Constraint("Coincident", 33, 2, 34, 1))
sketch6.addConstraint(Sketcher.Constraint("Coincident", 34, 2, 35, 1))
sketch6.addConstraint(Sketcher.Constraint("Coincident", 35, 2, 36, 1))
sketch6.addConstraint(Sketcher.Constraint("Coincident", 36, 2, 37, 1))
sketch6.addConstraint(Sketcher.Constraint("Coincident", 37, 2, 28, 1))
sketch6.addConstraint(Sketcher.Constraint("Horizontal", 0))
sketch6.addConstraint(Sketcher.Constraint("Vertical", 1))
sketch6.addConstraint(Sketcher.Constraint("Horizontal", 2))
sketch6.addConstraint(Sketcher.Constraint("Vertical", 3))
sketch6.addConstraint(Sketcher.Constraint("Vertical", 7))
sketch6.addConstraint(Sketcher.Constraint("Horizontal", 8))
sketch6.addConstraint(Sketcher.Constraint("Horizontal", 12))
sketch6.addConstraint(Sketcher.Constraint("Horizontal", 13))
sketch6.addConstraint(Sketcher.Constraint("Horizontal", 15))
sketch6.addConstraint(Sketcher.Constraint("Horizontal", 17))
sketch6.addConstraint(Sketcher.Constraint("Horizontal", 19))
sketch6.addConstraint(Sketcher.Constraint("Horizontal", 22))
sketch6.addConstraint(Sketcher.Constraint("Vertical", 24))
sketch6.addConstraint(Sketcher.Constraint("Horizontal", 25))
sketch6.addConstraint(Sketcher.Constraint("Vertical", 26))
sketch6.addConstraint(Sketcher.Constraint("Horizontal", 27))
sketch6.addConstraint(Sketcher.Constraint("Horizontal", 28))
sketch6.addConstraint(Sketcher.Constraint("Vertical", 29))
sketch6.addConstraint(Sketcher.Constraint("Horizontal", 30))
sketch6.addConstraint(Sketcher.Constraint("Vertical", 31))
sketch6.addConstraint(Sketcher.Constraint("Horizontal", 33))
sketch6.addConstraint(Sketcher.Constraint("Vertical", 34))
sketch6.addConstraint(Sketcher.Constraint("Horizontal", 35))
sketch6.addConstraint(Sketcher.Constraint("Vertical", 36))
sketch6.addConstraint(Sketcher.Constraint("Horizontal", 0, 2, 13, 2))
sketch6.addConstraint(Sketcher.Constraint("Horizontal", 2, 2, 14, 2))
sketch6.addConstraint(Sketcher.Constraint("Horizontal", 15, 2, 18, 2))
sketch6.addConstraint(Sketcher.Constraint("Horizontal", 19, 2, 24, 2))
sketch6.addConstraint(Sketcher.Constraint("Horizontal", 20, 2, 26, 2))
sketch6.addConstraint(Sketcher.Constraint("Horizontal", 27, 2, 28, 2))
sketch6.addConstraint(Sketcher.Constraint("Horizontal", 25, 2, 29, 2))
sketch6.addConstraint(Sketcher.Constraint("Horizontal", 30, 2, 32, 2))
sketch6.addConstraint(Sketcher.Constraint("Horizontal", 28, 2, 34, 2))
sketch6.addConstraint(Sketcher.Constraint("Vertical", 3, 2, 7, 2))
sketch6.addConstraint(Sketcher.Constraint("Equal", 15, 19))
sketch6.addConstraint(Sketcher.Constraint("Equal", 2, 25))
sketch6.addConstraint(Sketcher.Constraint("Equal", 27, 30))
sketch6.addConstraint(Sketcher.Constraint("Equal", 30, 35))
sketch6.addConstraint(Sketcher.Constraint("DistanceY", 1, 1, 1, 2, Q("3.175 mm")))
sketch6.addConstraint(Sketcher.Constraint("DistanceX", 2, 1, 2, 2, Q("0.569872 mm")))
sketch6.addConstraint(Sketcher.Constraint("DistanceX", 15, 1, 15, 2, Q("0.608669 mm")))
sketch6.addConstraint(Sketcher.Constraint("DistanceX", 16, 2, 20, 2, Q("0.955298 mm")))
sketch6.addConstraint(Sketcher.Constraint("DistanceX", 19, 2, 24, 2, Q("0.386699 mm")))
sketch6.addConstraint(Sketcher.Constraint("DistanceX", 24, 2, 32, 2, Q("3.3092 mm")))
sketch6.addConstraint(Sketcher.Constraint("DistanceX", 13, 2, 13, 1, Q("0.529803 mm")))
sketch6.addConstraint(Sketcher.Constraint("DistanceX", 17, 1, 17, 2, Q("1.382066 mm")))
sketch6.addConstraint(Sketcher.Constraint("DistanceX", 22, 2, 22, 1, Q("0.949574 mm")))
sketch6.addConstraint(Sketcher.Constraint("DistanceX", 28, 2, 28, 1, Q("0.513266 mm")))
sketch6.addConstraint(Sketcher.Constraint("DistanceX", 33, 1, 33, 2, Q("0.517082 mm")))
sketch6.addConstraint(Sketcher.Constraint("DistanceY", 31, 2, 31, 1, Q("2.082958 mm")))
sketch6.addConstraint(Sketcher.Constraint("DistanceY", 36, 1, 36, 2, Q("2.089318 mm")))
sketch6.addConstraint(Sketcher.Constraint("DistanceX", 18, 2, -1, 1, Q("0.540412 mm")))
sketch6.addConstraint(Sketcher.Constraint("DistanceX", -1, 1, 28, 2, Q("1.75752 mm")))
sketch6.addConstraint(Sketcher.Constraint("DistanceX", 1, 2, 14, 2, Q("2.137019 mm")))
sketch6.addConstraint(Sketcher.Constraint("DistanceX", 15, 2, 16, 2, Q("0.247411 mm")))
sketch6.addConstraint(Sketcher.Constraint("DistanceY", 21, 2, 17, 2, Q("0.569872 mm")))
sketch6.addConstraint(Sketcher.Constraint("DistanceX", 16, 2, 21, 2, Q("1.16582 mm")))
sketch6.addConstraint(Sketcher.Constraint("DistanceX", 13, 2, 23, 2, Q("0.265219 mm")))
sketch6.addConstraint(Sketcher.Constraint("DistanceY", 23, 2, 22, 2, Q("1.102219 mm")))
sketch6.addConstraint(Sketcher.Constraint("Distance", 16, Q("0.696693 mm")))
pad3 = body.newObject("PartDesign::Pad", "Pad002")
pad3.Profile = sketch6
pad3.setExpression("Length", "Params.pad3_length")
pad3.Reversed = True

doc.recompute()
